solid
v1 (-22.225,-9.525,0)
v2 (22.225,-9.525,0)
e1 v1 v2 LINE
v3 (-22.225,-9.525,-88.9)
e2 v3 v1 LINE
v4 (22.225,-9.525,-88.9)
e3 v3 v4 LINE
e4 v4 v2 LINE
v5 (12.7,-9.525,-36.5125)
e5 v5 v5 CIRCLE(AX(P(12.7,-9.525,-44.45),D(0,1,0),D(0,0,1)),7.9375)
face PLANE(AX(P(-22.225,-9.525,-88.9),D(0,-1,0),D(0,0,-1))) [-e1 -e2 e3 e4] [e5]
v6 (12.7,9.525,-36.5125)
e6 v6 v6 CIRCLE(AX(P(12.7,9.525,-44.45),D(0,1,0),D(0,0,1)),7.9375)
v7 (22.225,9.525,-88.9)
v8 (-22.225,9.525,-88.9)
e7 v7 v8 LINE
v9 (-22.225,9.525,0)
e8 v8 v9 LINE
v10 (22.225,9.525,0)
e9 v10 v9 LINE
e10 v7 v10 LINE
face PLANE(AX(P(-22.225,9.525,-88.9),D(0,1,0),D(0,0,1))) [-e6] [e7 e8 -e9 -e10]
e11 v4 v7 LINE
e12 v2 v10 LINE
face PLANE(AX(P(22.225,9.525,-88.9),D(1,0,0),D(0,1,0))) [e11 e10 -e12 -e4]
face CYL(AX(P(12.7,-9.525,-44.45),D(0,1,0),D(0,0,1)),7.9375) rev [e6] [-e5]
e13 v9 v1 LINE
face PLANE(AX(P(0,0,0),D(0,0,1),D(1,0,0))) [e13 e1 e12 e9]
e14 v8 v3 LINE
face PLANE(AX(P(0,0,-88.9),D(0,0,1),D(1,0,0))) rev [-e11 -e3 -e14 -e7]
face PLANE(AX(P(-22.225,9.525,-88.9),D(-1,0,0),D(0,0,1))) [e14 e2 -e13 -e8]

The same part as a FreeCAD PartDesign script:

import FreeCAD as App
import Part
import Sketcher

V = App.Vector
Q = App.Units.Quantity


def add_polygon(sketch, points):
    """Adds a closed chain of lines whose ends are joined by coincident constraints."""
    first, n = sketch.GeometryCount, len(points)
    for a, b in zip(points, points[1:] + points[:1]):
        sketch.addGeometry(Part.LineSegment(App.Vector(*a, 0), App.Vector(*b, 0)), False)
    for i in range(n):
        sketch.addConstraint(Sketcher.Constraint("Coincident", first + i, 2, first + (i + 1) % n, 1))

doc = App.newDocument("Part")
body = doc.addObject("PartDesign::Body", "Body")

sketch1 = body.newObject("Sketcher::SketchObject", "Sketch")
sketch1.AttachmentSupport = (doc.getObject("XY_Plane"), [""])
sketch1.MapMode = "FlatFace"
add_polygon(sketch1, [(-22.225, 9.525), (-22.225, -9.525), (22.225, -9.525), (22.225, 9.525)])
sketch1.addConstraint([
    Sketcher.Constraint("Vertical", 0),
    Sketcher.Constraint("Horizontal", 1),
    Sketcher.Constraint("Vertical", 2),
    Sketcher.Constraint("Horizontal", 3),
    Sketcher.Constraint("Symmetric", 0, 2, 2, 2, -1, 1),
    Sketcher.Constraint("DistanceX", 1, 1, 1, 2, Q("1.75 in")),
    Sketcher.Constraint("DistanceY", 0, 2, 0, 1, Q("0.75 in")),
])
pad1 = body.newObject("PartDesign::Pad", "Pad")
pad1.Profile = sketch1
pad1.Length = Q("3.5 in")
pad1.Reversed = True

sketch2 = body.newObject("Sketcher::SketchObject", "Sketch001")
sketch2.AttachmentSupport = (doc.getObject("XZ_Plane"), [""])
sketch2.MapMode = "FlatFace"
sketch2.AttachmentOffset = App.Placement(V(0, 0, -0.375 * 25.4), App.Rotation())
sketch2.addGeometry(Part.Circle(V(12.7, -44.45, 0), V(0, 0, 1), 7.9375), False)
sketch2.addConstraint([
    Sketcher.Constraint("Diameter", 0, Q("0.625 in")),
    Sketcher.Constraint("DistanceX", -1, 1, 0, 3, Q("0.5 in")),
    Sketcher.Constraint("DistanceY", 0, 3, -1, 1, Q("1.75 in")),
])
pocket1 = body.newObject("PartDesign::Pocket", "Pocket")
pocket1.Profile = sketch2
pocket1.Type = "ThroughAll"
pocket1.Reversed = True

doc.recompute()
